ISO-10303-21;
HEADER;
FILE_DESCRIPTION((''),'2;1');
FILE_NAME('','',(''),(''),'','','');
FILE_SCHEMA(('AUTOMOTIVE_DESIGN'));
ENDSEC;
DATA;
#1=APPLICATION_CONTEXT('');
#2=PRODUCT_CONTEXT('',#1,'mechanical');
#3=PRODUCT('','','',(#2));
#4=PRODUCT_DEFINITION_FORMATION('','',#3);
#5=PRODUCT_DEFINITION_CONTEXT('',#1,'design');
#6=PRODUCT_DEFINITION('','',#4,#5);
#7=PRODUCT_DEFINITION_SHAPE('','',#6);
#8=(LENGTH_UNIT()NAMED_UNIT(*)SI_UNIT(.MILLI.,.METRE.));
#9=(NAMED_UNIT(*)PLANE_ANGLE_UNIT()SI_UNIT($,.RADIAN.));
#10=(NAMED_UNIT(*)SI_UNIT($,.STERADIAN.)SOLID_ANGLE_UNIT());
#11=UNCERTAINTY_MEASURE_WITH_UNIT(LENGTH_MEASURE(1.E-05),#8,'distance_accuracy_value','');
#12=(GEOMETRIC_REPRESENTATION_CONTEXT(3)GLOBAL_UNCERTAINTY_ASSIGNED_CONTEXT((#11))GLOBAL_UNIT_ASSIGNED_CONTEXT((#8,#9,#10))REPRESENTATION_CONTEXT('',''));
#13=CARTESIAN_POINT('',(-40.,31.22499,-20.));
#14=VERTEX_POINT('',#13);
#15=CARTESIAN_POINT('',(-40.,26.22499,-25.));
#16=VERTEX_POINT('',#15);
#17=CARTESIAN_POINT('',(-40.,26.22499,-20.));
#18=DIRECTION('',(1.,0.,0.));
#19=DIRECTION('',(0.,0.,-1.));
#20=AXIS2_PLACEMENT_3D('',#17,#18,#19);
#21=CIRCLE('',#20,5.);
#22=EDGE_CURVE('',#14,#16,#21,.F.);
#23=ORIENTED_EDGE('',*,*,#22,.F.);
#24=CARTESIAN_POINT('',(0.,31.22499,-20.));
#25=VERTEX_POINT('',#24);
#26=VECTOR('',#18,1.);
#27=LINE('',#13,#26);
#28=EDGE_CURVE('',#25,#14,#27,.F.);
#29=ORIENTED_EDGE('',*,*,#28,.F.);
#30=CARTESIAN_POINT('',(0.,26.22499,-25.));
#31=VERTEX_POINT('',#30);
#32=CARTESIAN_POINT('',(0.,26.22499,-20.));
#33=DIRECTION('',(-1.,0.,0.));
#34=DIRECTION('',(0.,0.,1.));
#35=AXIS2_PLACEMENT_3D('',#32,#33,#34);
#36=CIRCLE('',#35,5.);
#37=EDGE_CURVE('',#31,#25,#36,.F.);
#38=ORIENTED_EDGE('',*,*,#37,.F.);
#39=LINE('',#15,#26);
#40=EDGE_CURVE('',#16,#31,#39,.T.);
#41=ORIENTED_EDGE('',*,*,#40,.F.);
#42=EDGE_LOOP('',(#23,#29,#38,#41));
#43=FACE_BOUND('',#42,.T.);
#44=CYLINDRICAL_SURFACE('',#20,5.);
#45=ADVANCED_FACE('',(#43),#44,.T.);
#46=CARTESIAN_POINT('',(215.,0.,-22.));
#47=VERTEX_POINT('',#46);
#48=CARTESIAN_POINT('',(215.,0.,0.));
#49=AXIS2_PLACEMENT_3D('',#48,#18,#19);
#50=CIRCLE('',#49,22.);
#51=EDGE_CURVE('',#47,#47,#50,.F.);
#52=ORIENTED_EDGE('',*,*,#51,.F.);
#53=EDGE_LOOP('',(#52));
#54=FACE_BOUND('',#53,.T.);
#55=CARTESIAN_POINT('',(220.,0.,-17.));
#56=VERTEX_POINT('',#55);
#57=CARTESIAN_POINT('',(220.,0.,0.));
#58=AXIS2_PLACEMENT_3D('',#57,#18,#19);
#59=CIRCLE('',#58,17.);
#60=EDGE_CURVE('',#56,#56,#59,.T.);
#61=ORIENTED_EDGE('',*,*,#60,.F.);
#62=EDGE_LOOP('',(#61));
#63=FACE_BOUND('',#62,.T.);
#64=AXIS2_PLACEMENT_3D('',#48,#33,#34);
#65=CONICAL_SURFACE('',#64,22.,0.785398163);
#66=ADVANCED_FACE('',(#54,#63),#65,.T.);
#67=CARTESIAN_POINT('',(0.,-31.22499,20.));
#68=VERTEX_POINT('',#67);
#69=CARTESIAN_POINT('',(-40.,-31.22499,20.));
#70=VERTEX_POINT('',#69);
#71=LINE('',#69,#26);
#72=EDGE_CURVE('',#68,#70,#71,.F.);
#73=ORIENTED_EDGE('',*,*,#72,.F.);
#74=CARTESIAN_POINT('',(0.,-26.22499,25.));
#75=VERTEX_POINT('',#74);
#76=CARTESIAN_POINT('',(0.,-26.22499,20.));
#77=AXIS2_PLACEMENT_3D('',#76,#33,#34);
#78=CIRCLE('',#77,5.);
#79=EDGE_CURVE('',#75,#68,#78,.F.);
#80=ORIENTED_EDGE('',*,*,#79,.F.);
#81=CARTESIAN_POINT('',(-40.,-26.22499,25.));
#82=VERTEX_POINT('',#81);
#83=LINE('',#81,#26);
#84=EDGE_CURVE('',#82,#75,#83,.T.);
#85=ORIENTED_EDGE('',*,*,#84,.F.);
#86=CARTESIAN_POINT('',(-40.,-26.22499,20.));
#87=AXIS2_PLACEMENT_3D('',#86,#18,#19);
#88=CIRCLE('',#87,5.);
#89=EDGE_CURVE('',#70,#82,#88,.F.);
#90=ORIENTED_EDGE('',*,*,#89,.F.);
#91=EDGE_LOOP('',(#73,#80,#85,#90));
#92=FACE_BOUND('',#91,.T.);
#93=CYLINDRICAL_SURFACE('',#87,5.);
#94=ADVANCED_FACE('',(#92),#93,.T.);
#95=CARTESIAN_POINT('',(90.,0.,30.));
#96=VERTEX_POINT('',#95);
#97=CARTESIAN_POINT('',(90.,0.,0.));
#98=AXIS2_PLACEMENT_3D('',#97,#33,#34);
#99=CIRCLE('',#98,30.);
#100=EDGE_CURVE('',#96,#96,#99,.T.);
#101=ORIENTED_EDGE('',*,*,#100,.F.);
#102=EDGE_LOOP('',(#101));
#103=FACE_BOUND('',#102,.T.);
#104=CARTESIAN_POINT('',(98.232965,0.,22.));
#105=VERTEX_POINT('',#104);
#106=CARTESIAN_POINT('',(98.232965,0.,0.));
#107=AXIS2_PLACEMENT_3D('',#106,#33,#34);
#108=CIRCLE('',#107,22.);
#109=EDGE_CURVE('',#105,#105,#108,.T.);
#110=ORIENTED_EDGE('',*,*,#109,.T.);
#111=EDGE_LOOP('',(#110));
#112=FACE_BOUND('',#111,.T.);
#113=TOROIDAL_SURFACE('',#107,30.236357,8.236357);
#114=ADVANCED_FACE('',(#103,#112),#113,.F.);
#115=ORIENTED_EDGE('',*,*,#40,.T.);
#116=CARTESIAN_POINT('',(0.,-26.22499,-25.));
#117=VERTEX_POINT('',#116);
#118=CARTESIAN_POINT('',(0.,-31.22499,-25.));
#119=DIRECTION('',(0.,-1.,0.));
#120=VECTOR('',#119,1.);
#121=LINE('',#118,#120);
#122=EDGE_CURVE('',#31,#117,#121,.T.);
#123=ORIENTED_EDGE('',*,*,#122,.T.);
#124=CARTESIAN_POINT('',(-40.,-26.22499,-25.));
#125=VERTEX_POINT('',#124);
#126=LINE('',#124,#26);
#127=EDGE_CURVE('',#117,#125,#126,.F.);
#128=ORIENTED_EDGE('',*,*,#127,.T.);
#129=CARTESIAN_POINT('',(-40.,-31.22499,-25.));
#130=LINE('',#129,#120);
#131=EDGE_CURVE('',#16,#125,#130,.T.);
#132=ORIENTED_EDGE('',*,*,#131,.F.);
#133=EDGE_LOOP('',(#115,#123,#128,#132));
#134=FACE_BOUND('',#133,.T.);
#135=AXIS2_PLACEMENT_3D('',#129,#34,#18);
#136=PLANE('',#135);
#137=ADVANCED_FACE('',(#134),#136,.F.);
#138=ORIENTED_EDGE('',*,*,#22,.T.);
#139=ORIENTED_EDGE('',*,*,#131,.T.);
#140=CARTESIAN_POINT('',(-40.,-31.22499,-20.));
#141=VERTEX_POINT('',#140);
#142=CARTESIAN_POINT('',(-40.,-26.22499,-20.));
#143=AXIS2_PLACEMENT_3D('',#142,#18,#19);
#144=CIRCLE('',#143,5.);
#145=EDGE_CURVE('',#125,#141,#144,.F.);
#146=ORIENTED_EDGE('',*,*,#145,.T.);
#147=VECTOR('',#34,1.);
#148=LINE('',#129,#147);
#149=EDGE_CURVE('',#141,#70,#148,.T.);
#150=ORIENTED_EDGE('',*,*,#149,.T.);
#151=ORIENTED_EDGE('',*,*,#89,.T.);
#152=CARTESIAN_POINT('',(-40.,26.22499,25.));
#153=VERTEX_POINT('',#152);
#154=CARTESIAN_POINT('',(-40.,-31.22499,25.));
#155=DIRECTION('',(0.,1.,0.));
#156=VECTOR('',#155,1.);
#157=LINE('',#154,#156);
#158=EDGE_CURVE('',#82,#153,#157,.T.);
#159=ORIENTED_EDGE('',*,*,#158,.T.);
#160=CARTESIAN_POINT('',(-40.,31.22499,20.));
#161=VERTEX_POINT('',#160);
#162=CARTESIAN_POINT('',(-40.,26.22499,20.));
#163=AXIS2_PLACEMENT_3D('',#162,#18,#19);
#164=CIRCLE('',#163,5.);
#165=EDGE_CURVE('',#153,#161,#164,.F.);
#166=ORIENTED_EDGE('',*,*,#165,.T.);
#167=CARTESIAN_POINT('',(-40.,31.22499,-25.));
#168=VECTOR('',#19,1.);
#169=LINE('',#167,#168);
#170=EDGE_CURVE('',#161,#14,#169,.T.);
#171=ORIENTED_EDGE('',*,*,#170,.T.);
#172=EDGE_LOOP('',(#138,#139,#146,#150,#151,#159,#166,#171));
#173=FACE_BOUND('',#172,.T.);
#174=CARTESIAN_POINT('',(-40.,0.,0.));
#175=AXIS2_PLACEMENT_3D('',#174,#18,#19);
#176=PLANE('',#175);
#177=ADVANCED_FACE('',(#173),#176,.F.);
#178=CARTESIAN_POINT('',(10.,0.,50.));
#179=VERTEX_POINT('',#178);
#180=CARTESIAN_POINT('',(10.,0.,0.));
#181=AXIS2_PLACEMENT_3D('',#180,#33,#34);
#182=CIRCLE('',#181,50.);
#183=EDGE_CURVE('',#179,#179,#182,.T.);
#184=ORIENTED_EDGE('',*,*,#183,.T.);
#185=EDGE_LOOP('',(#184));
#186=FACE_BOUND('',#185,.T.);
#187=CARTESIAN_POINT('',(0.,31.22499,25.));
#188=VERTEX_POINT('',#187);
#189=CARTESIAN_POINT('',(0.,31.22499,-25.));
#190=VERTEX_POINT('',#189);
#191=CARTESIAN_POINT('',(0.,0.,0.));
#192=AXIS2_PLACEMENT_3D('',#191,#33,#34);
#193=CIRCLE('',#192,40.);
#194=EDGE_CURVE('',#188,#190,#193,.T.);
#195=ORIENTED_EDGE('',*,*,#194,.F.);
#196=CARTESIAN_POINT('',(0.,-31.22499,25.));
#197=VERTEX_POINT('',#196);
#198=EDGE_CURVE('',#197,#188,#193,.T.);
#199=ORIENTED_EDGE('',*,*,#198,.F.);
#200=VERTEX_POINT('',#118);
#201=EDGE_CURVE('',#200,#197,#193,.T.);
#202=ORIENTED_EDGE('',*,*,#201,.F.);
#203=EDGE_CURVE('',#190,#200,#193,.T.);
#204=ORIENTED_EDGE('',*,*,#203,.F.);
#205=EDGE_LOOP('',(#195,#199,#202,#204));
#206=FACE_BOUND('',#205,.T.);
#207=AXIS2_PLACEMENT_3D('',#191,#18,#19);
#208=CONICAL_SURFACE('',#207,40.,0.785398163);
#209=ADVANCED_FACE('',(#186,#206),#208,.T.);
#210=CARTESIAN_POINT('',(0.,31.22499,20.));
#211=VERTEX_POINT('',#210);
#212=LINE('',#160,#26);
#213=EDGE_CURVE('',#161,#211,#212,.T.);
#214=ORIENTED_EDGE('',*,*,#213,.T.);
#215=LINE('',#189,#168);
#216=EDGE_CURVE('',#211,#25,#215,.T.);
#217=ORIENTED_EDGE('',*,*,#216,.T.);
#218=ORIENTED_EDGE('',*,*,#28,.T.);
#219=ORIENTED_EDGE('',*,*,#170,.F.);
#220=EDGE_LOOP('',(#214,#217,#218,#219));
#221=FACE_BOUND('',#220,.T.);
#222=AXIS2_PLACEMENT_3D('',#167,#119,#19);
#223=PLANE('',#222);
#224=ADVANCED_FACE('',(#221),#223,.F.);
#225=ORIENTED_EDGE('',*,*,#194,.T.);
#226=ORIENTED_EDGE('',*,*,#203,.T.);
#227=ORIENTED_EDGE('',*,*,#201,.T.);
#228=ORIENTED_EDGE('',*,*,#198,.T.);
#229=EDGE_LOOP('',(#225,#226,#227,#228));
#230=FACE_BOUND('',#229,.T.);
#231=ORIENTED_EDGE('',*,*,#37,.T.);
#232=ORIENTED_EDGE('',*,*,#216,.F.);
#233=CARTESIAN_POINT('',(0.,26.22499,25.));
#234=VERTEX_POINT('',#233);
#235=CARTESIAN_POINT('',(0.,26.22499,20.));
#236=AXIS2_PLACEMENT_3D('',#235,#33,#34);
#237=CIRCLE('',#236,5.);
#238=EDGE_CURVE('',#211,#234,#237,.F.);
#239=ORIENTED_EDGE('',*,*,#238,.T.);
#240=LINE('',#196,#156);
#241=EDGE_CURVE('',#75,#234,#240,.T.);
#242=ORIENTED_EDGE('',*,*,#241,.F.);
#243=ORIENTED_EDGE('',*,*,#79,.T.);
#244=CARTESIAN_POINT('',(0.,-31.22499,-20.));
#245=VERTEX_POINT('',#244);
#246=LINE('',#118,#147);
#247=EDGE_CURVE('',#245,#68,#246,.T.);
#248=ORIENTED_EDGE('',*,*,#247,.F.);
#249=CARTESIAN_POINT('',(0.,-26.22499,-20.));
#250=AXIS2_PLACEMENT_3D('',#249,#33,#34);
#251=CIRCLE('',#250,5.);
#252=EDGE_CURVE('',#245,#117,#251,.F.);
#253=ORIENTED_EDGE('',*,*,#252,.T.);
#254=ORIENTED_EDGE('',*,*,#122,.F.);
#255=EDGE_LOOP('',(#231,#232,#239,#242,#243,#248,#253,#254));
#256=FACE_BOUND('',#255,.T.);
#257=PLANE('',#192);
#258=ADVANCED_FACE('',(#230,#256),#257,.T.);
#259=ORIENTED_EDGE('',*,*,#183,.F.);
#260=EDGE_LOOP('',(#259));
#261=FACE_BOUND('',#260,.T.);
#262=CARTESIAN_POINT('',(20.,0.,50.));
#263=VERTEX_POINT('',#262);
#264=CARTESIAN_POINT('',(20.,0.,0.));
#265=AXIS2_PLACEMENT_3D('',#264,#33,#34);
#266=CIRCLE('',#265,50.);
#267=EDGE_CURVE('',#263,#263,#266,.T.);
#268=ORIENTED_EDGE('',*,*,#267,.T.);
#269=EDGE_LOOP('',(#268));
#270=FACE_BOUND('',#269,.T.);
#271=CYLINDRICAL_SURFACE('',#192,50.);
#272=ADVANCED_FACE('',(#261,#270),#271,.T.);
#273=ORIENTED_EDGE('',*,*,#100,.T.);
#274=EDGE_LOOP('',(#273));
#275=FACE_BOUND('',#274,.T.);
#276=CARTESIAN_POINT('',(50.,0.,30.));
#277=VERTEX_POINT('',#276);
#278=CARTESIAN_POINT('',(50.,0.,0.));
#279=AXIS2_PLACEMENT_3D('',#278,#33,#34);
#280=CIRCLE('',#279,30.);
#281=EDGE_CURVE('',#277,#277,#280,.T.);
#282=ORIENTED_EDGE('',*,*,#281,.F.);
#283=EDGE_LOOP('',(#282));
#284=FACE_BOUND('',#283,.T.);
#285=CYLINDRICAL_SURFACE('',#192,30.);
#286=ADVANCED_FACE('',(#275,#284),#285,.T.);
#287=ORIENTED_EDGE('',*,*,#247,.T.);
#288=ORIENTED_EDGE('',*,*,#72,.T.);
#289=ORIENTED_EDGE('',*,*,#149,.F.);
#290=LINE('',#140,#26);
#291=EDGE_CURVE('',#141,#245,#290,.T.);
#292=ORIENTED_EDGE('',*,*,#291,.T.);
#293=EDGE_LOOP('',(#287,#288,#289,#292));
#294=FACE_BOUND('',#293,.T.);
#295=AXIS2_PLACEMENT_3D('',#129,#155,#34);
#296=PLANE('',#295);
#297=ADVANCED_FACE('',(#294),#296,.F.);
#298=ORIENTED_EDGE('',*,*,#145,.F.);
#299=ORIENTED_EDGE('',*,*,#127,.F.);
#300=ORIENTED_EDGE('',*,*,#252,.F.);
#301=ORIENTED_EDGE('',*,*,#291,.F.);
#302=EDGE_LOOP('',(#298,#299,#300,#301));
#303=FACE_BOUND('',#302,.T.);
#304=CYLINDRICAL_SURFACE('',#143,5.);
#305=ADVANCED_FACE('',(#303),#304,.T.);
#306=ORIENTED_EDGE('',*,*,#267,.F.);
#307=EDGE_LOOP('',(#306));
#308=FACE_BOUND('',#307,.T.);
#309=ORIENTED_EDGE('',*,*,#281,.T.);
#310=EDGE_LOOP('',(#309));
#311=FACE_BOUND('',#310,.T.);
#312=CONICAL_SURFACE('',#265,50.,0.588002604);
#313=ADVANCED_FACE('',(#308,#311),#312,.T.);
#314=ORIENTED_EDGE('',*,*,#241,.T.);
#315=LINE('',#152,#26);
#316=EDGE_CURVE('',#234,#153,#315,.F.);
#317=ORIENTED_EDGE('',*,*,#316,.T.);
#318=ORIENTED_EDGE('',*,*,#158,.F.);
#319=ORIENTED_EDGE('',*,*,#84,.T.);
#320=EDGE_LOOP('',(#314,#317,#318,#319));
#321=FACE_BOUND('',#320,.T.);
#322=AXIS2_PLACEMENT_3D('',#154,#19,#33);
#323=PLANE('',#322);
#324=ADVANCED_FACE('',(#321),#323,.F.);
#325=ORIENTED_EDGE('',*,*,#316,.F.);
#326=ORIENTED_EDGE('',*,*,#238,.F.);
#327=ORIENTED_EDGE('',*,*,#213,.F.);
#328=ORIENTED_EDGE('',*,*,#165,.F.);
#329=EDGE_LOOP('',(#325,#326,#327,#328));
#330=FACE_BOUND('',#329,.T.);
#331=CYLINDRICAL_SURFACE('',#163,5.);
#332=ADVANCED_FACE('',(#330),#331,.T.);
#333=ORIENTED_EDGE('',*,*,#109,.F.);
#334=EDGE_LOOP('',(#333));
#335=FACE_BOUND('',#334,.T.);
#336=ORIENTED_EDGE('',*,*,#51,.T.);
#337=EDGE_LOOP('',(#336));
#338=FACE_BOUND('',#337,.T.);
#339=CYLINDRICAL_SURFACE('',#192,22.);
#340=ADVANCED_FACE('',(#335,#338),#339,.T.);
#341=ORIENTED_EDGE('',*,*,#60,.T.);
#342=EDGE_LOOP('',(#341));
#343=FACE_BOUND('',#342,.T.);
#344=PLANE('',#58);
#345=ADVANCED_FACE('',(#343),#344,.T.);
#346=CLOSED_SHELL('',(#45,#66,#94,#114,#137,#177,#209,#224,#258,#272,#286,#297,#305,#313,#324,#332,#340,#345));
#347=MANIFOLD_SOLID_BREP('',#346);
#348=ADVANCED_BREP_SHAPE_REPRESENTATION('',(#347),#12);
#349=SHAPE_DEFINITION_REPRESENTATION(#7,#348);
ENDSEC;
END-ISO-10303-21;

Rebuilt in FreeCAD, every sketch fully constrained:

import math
import FreeCAD as App
import Part
import Sketcher
Q = App.Units.Quantity


def edges_at(feature, points):
    """Names of the edges that pass closest to the given points."""
    edges = feature.Shape.Edges
    near = lambda p: min(range(len(edges)), key=lambda i: edges[i].distToShape(Part.Vertex(*p))[0])
    return sorted({f"Edge{near(p) + 1}" for p in points})


def add_polygon(sketch, points):
    """Adds a closed chain of lines whose ends are joined by coincident constraints."""
    first, n = sketch.GeometryCount, len(points)
    for a, b in zip(points, points[1:] + points[:1]):
        sketch.addGeometry(Part.LineSegment(App.Vector(*a, 0), App.Vector(*b, 0)), False)
    for i in range(n):
        sketch.addConstraint(Sketcher.Constraint("Coincident", first + i, 2, first + (i + 1) % n, 1))

doc = App.newDocument("Part")
body = doc.addObject("PartDesign::Body", "Body")

sketch1 = doc.addObject("Sketcher::SketchObject", "Sketch")
body.addObject(sketch1)
sketch1.AttachmentSupport = (doc.XY_Plane, [""])
sketch1.MapMode = "FlatFace"
sketch1.addGeometry(Part.LineSegment(App.Vector(0, 0, 0), App.Vector(0, -40, 0)), False)
sketch1.addGeometry(Part.LineSegment(App.Vector(0, -40, 0), App.Vector(10, -50, 0)), False)
sketch1.addGeometry(Part.LineSegment(App.Vector(10, -50, 0), App.Vector(20, -50, 0)), False)
sketch1.addGeometry(Part.LineSegment(App.Vector(20, -50, 0), App.Vector(50, -30, 0)), False)
sketch1.addGeometry(Part.LineSegment(App.Vector(50, -30, 0), App.Vector(90, -30, 0)), False)
sketch1.addGeometry(Part.ArcOfCircle(Part.Circle(App.Vector(98, -30, 0), App.Vector(0, 0, 1), 8), math.radians(90), math.radians(178)), False)
sketch1.addGeometry(Part.LineSegment(App.Vector(98, -22, 0), App.Vector(220, -22, 0)), False)
sketch1.addGeometry(Part.LineSegment(App.Vector(220, -22, 0), App.Vector(220, 0, 0)), False)
sketch1.addGeometry(Part.LineSegment(App.Vector(220, 0, 0), App.Vector(0, 0, 0)), False)
sketch1.addConstraint(Sketcher.Constraint("Coincident", 0, 2, 1, 1))
sketch1.addConstraint(Sketcher.Constraint("Coincident", 1, 2, 2, 1))
sketch1.addConstraint(Sketcher.Constraint("Coincident", 2, 2, 3, 1))
sketch1.addConstraint(Sketcher.Constraint("Coincident", 3, 2, 4, 1))
sketch1.addConstraint(Sketcher.Constraint("Coincident", 4, 2, 5, 2))
sketch1.addConstraint(Sketcher.Constraint("Tangent", 5, 1, 6, 1))
sketch1.addConstraint(Sketcher.Constraint("Coincident", 6, 2, 7, 1))
sketch1.addConstraint(Sketcher.Constraint("Coincident", 7, 2, 8, 1))
sketch1.addConstraint(Sketcher.Constraint("Coincident", 8, 2, 0, 1))
sketch1.addConstraint(Sketcher.Constraint("Vertical", 0))
sketch1.addConstraint(Sketcher.Constraint("Horizontal", 2))
sketch1.addConstraint(Sketcher.Constraint("Horizontal", 4))
sketch1.addConstraint(Sketcher.Constraint("Horizontal", 6))
sketch1.addConstraint(Sketcher.Constraint("Vertical", 7))
sketch1.addConstraint(Sketcher.Constraint("Horizontal", 8))
sketch1.addConstraint(Sketcher.Constraint("Coincident", 8, 2, -1, 1))
sketch1.addConstraint(Sketcher.Constraint("Equal", 4, 0))
sketch1.addConstraint(Sketcher.Constraint("DistanceX", 2, 1, 2, 2, Q("10 mm")))
sketch1.addConstraint(Sketcher.Constraint("DistanceX", 4, 1, 4, 2, Q("40 mm")))
sketch1.addConstraint(Sketcher.Constraint("DistanceX", 8, 2, 8, 1, Q("220 mm")))
sketch1.addConstraint(Sketcher.Constraint("DistanceY", 7, 1, 7, 2, Q("22 mm")))
sketch1.addConstraint(Sketcher.Constraint("Angle", 1, Q("-45 deg")))
sketch1.addConstraint(Sketcher.Constraint("DistanceX", -1, 1, 1, 2, Q("10 mm")))
sketch1.addConstraint(Sketcher.Constraint("DistanceX", -1, 1, 3, 2, Q("50 mm")))
sketch1.addConstraint(Sketcher.Constraint("DistanceY", 3, 2, -1, 1, Q("30 mm")))
sketch1.addConstraint(Sketcher.Constraint("Radius", 5, Q("8.236357 mm")))
revolution = doc.addObject("PartDesign::Revolution", "Revolution")
body.addObject(revolution)
revolution.Profile = sketch1
revolution.ReferenceAxis = (sketch1, ["H_Axis"])
revolution.Angle = 360

sketch2 = doc.addObject("Sketcher::SketchObject", "Sketch001")
body.addObject(sketch2)
sketch2.AttachmentSupport = (doc.YZ_Plane, [""])
sketch2.MapMode = "FlatFace"
add_polygon(sketch2, [(31, -25), (-31, -25), (-31, 25), (31, 25)])
sketch2.addConstraint(Sketcher.Constraint("Horizontal", 0))
sketch2.addConstraint(Sketcher.Constraint("Vertical", 1))
sketch2.addConstraint(Sketcher.Constraint("Horizontal", 2))
sketch2.addConstraint(Sketcher.Constraint("Vertical", 3))
sketch2.addConstraint(Sketcher.Constraint("Symmetric", 0, 2, 2, 2, -1, 1))
sketch2.addConstraint(Sketcher.Constraint("DistanceY", 1, 1, 1, 2, Q("50 mm")))
sketch2.addConstraint(Sketcher.Constraint("DistanceX", 0, 2, 0, 1, Q("62.44998 mm")))
pad1 = doc.addObject("PartDesign::Pad", "Pad")
body.addObject(pad1)
pad1.Profile = sketch2
pad1.Length = 40
pad1.Reversed = True
doc.recompute()

fillet = doc.addObject("PartDesign::Fillet", "Fillet")
body.addObject(fillet)
fillet.Base = (pad1, edges_at(pad1, [(-20, 31.225, 25)]))
fillet.Radius = 5
doc.recompute()

fillet2 = doc.addObject("PartDesign::Fillet", "Fillet001")
body.addObject(fillet2)
fillet2.Base = (fillet, edges_at(fillet, [(-20, -31.225, 25), (-20, 31.225, -25), (-20, -31.225, -25)]))
fillet2.Radius = 5
doc.recompute()

chamfer = doc.addObject("PartDesign::Chamfer", "Chamfer")
body.addObject(chamfer)
chamfer.Base = (fillet2, edges_at(fillet2, [(220, 0, -22)]))
chamfer.Size = 5

doc.recompute()
